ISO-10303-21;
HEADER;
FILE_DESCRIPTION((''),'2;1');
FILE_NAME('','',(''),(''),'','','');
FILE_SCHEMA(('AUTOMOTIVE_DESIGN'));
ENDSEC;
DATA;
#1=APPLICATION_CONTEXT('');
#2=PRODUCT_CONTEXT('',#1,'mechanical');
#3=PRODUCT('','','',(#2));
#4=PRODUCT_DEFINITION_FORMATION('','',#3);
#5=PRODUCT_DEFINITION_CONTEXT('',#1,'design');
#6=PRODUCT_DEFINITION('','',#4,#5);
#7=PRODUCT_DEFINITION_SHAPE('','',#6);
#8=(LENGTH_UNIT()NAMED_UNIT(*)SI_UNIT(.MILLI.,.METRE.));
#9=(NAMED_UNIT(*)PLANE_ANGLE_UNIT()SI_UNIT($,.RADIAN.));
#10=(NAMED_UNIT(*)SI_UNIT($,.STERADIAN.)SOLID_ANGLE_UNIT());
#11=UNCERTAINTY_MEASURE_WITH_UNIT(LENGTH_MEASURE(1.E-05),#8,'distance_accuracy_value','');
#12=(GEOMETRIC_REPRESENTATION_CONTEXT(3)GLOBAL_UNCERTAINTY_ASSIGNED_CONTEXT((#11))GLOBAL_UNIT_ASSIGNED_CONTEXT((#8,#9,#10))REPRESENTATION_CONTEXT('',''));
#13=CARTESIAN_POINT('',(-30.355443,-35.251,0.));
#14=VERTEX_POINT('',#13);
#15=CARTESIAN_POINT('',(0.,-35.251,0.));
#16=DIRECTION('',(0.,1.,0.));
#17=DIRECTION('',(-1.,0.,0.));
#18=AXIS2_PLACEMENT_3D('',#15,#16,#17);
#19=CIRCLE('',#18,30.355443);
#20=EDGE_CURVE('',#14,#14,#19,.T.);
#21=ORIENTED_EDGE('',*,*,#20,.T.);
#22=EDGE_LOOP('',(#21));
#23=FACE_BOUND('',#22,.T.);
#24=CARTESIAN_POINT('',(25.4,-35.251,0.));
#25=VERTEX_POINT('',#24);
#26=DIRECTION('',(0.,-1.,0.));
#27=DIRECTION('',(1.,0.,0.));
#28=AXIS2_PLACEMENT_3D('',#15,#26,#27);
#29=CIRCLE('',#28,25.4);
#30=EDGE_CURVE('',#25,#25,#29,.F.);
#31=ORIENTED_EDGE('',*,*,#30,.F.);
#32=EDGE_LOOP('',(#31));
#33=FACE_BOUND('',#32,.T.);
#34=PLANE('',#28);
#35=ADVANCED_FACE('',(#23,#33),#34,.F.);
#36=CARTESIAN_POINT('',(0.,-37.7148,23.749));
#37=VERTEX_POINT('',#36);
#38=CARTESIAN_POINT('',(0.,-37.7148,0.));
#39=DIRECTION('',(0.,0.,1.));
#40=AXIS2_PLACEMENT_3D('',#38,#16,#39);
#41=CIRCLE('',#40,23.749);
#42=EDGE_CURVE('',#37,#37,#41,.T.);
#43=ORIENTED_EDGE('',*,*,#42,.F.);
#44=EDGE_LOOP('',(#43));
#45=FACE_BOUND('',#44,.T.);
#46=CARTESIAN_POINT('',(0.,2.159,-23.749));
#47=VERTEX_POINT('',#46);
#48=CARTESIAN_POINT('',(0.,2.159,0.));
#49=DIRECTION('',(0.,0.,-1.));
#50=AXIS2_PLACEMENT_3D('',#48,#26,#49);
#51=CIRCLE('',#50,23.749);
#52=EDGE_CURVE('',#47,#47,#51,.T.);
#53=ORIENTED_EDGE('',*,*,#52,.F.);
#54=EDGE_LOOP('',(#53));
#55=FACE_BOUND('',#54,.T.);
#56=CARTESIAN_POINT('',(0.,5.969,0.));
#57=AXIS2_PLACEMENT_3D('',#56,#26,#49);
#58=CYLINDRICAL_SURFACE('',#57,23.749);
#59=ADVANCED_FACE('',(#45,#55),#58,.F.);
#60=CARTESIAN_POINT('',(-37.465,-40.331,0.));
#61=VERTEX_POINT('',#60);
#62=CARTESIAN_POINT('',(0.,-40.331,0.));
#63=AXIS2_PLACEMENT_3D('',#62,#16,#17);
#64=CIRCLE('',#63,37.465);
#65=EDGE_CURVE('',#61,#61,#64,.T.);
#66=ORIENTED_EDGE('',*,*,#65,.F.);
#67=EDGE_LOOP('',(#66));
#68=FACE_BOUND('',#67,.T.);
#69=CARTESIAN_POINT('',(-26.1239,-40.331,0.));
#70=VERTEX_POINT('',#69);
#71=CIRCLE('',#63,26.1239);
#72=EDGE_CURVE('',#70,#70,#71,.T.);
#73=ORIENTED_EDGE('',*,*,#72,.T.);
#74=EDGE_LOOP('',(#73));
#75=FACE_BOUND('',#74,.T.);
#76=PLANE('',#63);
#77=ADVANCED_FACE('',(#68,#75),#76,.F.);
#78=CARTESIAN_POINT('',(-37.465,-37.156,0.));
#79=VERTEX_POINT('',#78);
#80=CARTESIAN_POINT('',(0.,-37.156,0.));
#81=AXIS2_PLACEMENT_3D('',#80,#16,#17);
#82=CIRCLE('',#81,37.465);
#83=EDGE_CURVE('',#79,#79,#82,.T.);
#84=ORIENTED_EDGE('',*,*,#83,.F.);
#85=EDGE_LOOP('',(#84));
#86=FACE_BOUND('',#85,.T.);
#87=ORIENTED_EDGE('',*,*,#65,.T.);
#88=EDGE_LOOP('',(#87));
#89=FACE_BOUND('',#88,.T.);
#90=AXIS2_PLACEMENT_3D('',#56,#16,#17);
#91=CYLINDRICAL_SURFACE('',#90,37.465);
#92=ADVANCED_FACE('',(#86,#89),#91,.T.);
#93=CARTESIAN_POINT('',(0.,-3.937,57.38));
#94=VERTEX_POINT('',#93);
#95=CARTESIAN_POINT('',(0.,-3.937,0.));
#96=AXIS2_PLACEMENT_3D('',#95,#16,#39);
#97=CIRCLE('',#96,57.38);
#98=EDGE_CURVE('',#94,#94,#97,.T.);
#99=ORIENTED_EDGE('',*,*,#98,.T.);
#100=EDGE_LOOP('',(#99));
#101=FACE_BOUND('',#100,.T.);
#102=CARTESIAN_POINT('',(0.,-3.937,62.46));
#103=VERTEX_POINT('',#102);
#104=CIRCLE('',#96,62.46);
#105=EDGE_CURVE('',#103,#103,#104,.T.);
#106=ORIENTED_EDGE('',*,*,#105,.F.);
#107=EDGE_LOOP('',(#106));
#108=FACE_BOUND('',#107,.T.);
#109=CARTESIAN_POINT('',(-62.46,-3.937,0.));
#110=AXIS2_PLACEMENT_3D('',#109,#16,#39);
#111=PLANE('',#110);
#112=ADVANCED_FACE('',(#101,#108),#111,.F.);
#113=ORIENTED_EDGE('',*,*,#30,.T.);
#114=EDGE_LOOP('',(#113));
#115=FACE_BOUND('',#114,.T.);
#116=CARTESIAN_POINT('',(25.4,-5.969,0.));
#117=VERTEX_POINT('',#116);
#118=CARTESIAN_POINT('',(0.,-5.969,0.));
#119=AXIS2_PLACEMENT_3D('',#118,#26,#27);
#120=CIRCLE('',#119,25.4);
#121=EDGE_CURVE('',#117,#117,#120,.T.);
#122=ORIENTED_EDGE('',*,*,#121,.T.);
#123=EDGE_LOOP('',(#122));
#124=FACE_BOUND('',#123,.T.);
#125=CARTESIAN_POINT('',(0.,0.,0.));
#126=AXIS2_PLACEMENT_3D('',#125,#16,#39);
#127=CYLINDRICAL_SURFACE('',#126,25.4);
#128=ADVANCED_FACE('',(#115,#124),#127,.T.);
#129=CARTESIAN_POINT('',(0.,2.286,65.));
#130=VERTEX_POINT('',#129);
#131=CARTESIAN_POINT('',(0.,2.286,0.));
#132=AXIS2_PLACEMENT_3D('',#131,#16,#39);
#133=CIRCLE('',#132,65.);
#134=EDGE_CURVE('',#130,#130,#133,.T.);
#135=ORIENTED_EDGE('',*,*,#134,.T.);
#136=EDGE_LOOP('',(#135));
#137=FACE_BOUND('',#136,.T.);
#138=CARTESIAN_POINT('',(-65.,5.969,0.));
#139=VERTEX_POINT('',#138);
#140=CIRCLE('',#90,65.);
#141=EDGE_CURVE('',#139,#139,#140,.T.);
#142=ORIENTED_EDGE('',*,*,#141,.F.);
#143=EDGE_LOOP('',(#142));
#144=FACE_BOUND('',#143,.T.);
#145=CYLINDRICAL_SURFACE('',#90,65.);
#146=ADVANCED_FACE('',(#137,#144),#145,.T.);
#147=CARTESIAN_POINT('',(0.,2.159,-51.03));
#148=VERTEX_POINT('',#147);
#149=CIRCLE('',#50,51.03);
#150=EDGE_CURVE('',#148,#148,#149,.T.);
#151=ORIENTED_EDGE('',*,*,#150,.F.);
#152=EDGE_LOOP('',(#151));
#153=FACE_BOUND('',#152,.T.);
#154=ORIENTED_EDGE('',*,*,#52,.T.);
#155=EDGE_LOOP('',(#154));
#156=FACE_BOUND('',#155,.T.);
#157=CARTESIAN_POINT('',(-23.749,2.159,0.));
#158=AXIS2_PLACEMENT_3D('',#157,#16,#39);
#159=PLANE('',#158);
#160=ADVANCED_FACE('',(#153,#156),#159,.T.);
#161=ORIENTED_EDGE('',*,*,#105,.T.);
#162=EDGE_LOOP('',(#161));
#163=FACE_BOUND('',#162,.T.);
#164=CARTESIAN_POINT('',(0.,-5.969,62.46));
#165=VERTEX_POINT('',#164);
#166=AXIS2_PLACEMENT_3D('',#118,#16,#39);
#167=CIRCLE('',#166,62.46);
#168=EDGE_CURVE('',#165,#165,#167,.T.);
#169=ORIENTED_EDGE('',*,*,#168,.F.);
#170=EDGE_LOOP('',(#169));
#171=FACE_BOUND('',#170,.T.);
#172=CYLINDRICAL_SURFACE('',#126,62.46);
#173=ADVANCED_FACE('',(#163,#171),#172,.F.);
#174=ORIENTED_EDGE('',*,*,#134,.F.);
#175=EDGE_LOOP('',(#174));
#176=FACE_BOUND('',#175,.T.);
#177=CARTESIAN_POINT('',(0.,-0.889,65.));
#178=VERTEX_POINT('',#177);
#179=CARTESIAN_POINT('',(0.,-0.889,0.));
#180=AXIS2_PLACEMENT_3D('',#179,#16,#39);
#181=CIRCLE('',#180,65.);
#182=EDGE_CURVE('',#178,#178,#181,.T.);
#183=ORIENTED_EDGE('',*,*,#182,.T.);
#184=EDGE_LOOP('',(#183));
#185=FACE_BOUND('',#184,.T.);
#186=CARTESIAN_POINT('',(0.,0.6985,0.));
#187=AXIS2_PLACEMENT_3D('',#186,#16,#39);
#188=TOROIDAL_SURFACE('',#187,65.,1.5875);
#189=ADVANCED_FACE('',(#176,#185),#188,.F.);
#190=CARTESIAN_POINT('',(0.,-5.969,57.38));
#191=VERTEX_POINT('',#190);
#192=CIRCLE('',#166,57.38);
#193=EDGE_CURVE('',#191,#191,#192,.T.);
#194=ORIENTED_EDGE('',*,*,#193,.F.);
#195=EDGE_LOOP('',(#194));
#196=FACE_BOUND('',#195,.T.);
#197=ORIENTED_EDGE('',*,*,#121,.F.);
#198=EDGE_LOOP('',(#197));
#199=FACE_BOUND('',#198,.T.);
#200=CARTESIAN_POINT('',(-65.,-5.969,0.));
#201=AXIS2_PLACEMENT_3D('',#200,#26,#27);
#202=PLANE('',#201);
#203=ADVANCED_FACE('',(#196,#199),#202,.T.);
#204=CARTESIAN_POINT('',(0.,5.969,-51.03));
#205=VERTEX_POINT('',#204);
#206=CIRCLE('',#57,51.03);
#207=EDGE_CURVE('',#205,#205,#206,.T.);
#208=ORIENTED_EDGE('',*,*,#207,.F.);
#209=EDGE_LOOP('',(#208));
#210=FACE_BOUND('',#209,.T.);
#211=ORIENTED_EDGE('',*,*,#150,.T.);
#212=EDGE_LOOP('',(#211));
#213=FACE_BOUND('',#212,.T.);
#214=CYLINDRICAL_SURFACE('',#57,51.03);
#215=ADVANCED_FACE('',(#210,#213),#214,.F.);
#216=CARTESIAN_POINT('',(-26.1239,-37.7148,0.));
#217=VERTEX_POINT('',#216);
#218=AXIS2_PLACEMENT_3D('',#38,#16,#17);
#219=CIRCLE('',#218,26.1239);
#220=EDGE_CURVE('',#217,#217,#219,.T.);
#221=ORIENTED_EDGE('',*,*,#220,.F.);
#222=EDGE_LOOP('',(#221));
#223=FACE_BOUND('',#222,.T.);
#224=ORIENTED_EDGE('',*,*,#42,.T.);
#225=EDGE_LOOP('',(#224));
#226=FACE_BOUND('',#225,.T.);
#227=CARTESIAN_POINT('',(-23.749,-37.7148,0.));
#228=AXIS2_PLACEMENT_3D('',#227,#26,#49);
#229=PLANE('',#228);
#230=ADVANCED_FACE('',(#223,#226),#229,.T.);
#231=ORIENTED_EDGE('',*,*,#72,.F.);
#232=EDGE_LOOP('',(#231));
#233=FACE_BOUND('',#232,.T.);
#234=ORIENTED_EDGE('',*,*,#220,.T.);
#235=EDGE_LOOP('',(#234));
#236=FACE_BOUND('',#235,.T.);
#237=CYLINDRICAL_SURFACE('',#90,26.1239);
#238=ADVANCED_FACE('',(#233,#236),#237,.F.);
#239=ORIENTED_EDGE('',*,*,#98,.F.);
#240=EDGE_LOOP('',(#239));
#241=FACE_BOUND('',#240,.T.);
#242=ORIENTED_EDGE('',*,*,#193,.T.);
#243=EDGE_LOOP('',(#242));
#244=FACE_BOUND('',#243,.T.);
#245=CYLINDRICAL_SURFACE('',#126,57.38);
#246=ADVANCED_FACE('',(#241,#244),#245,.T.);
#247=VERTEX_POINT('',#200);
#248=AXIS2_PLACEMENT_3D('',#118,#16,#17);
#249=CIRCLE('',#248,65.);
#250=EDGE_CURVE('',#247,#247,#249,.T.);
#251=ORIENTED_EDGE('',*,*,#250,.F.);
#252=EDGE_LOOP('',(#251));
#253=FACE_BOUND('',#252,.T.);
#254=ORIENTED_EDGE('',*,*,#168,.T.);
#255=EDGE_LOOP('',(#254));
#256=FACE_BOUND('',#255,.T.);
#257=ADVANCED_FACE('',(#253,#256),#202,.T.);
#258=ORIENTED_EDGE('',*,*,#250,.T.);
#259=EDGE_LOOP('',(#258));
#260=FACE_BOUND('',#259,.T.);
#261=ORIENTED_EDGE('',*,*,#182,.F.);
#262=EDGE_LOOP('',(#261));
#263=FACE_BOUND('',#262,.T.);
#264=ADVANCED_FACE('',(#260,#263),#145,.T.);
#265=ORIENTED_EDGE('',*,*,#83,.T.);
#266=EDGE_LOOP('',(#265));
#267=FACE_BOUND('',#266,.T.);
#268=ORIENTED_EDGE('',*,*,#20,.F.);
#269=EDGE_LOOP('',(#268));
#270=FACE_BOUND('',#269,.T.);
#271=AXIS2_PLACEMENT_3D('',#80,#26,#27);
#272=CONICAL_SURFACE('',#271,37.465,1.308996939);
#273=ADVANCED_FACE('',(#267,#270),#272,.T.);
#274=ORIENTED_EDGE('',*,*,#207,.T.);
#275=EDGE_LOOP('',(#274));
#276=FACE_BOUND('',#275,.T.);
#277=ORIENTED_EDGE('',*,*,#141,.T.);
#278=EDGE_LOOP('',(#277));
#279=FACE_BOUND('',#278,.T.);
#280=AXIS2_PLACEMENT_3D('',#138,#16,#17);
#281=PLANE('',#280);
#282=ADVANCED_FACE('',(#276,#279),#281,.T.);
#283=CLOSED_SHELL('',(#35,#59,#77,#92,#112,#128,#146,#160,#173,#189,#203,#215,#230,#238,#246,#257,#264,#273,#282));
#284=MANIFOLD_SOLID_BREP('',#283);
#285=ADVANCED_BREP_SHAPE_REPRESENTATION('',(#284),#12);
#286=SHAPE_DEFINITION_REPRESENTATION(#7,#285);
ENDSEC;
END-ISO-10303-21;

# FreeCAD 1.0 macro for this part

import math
import FreeCAD as App
import Part
import Sketcher
from FreeCAD import Vector
Q = App.Units.Quantity

doc = App.newDocument("Part")
body = doc.addObject("PartDesign::Body", "Body")

# Sketch on XY plane
sketch1 = body.newObject("Sketcher::SketchObject", "Sketch")
sketch1.AttachmentSupport = (doc.getObject("XY_Plane"), [""])
sketch1.MapMode = "FlatFace"
sketch1.addGeometry([
    Part.LineSegment(Vector(-65, 6, 0), Vector(-65, -6, 0)),
    Part.LineSegment(Vector(-65, -6, 0), Vector(0, -6, 0)),
    Part.LineSegment(Vector(0, -6, 0), Vector(0, 6, 0)),
    Part.LineSegment(Vector(0, 6, 0), Vector(-65, 6, 0)),
], False)
sketch1.addConstraint([
    Sketcher.Constraint("Coincident", 0, 2, 1, 1),
    Sketcher.Constraint("Coincident", 1, 2, 2, 1),
    Sketcher.Constraint("Coincident", 2, 2, 3, 1),
    Sketcher.Constraint("Coincident", 3, 2, 0, 1),
    Sketcher.Constraint("Vertical", 0),
    Sketcher.Constraint("Horizontal", 1),
    Sketcher.Constraint("Vertical", 2),
    Sketcher.Constraint("Horizontal", 3),
    Sketcher.Constraint("Symmetric", 1, 2, 2, 2, -1, 1),
    Sketcher.Constraint("DistanceY", 0, 2, 0, 1, Q("0.47 in")),
    Sketcher.Constraint("DistanceX", 1, 1, 1, 2, 65.0),
])
revolution = body.newObject("PartDesign::Revolution", "Revolution")
revolution.Profile = sketch1
revolution.ReferenceAxis = (sketch1, ["V_Axis"])
revolution.Angle = 360

# Sketch on XY plane
sketch2 = body.newObject("Sketcher::SketchObject", "Sketch001")
sketch2.AttachmentSupport = (doc.getObject("XY_Plane"), [""])
sketch2.MapMode = "FlatFace"
sketch2.addGeometry([
    Part.LineSegment(Vector(-23.7, 2.2, 0), Vector(-23.7, -6, 0)),  # 0
    Part.LineSegment(Vector(-23.7, -6, 0), Vector(0, -6, 0)),  # 1
    Part.LineSegment(Vector(0, -6, 0), Vector(0, 6, 0)),  # 2
    Part.LineSegment(Vector(0, 6, 0), Vector(-51, 6, 0)),  # 3
    Part.LineSegment(Vector(-51, 6, 0), Vector(-51, 2.2, 0)),  # 4
    Part.LineSegment(Vector(-51, 2.2, 0), Vector(-23.7, 2.2, 0)),  # 5
], False)
sketch2.addConstraint([
    Sketcher.Constraint("Coincident", 0, 2, 1, 1),
    Sketcher.Constraint("Coincident", 1, 2, 2, 1),
    Sketcher.Constraint("Coincident", 2, 2, 3, 1),
    Sketcher.Constraint("Coincident", 3, 2, 4, 1),
    Sketcher.Constraint("Coincident", 4, 2, 5, 1),
    Sketcher.Constraint("Coincident", 5, 2, 0, 1),
    Sketcher.Constraint("Vertical", 0),
    Sketcher.Constraint("Horizontal", 1),
    Sketcher.Constraint("Vertical", 2),
    Sketcher.Constraint("Horizontal", 3),
    Sketcher.Constraint("Vertical", 4),
    Sketcher.Constraint("Horizontal", 5),
    Sketcher.Constraint("Symmetric", 1, 2, 2, 2, -1, 1),
    Sketcher.Constraint("DistanceY", 0, 2, 0, 1, Q("0.32 in")),
    Sketcher.Constraint("DistanceY", 2, 1, 2, 2, Q("0.47 in")),
    Sketcher.Constraint("DistanceX", 1, 1, 1, 2, Q("0.935 in")),
    Sketcher.Constraint("DistanceX", 3, 2, 3, 1, 51.03),
])
groove = body.newObject("PartDesign::Groove", "Groove")
groove.Profile = sketch2
groove.ReferenceAxis = (sketch2, ["V_Axis"])
groove.Angle = 360
body2 = doc.addObject("PartDesign::Body", "Body001")

# Sketch on XY plane
sketch3 = body2.newObject("Sketcher::SketchObject", "Sketch002")
sketch3.AttachmentSupport = (doc.getObject("XY_Plane001"), [""])
sketch3.MapMode = "FlatFace"
sketch3.addGeometry([
    Part.LineSegment(Vector(30.4, -35.3, 0), Vector(23.7, -35.3, 0)),  # 0
    Part.LineSegment(Vector(23.7, -35.3, 0), Vector(23.7, -37.7, 0)),  # 1
    Part.LineSegment(Vector(23.7, -37.7, 0), Vector(26.1, -37.7, 0)),  # 2
    Part.LineSegment(Vector(26.1, -37.7, 0), Vector(26.1, -40.3, 0)),  # 3
    Part.LineSegment(Vector(26.1, -40.3, 0), Vector(37.5, -40.3, 0)),  # 4
    Part.LineSegment(Vector(37.5, -40.3, 0), Vector(37.5, -37.2, 0)),  # 5
    Part.LineSegment(Vector(37.5, -37.2, 0), Vector(30.4, -35.3, 0)),  # 6
], False)
sketch3.addConstraint([
    Sketcher.Constraint("Coincident", 0, 2, 1, 1),
    Sketcher.Constraint("Coincident", 1, 2, 2, 1),
    Sketcher.Constraint("Coincident", 2, 2, 3, 1),
    Sketcher.Constraint("Coincident", 3, 2, 4, 1),
    Sketcher.Constraint("Coincident", 4, 2, 5, 1),
    Sketcher.Constraint("Coincident", 5, 2, 6, 1),
    Sketcher.Constraint("Coincident", 6, 2, 0, 1),
    Sketcher.Constraint("Horizontal", 0),
    Sketcher.Constraint("Vertical", 1),
    Sketcher.Constraint("Horizontal", 2),
    Sketcher.Constraint("Vertical", 3),
    Sketcher.Constraint("Horizontal", 4),
    Sketcher.Constraint("Vertical", 5),
    Sketcher.Constraint("Angle", 6, Q("165 deg")),
    Sketcher.Constraint("DistanceY", 3, 2, 0, 2, Q("0.2 in")),
    Sketcher.Constraint("DistanceY", 1, 2, 1, 1, Q("0.097 in")),
    Sketcher.Constraint("DistanceY", 5, 1, 5, 2, Q("0.125 in")),
    Sketcher.Constraint("DistanceX", 1, 2, 4, 2, Q("0.54 in")),
    Sketcher.Constraint("DistanceX", 2, 1, 2, 2, Q("0.0935 in")),
    Sketcher.Constraint("DistanceX", -1, 1, 0, 2, Q("0.935 in")),
    Sketcher.Constraint("DistanceY", 0, 2, -1, 1, 35.251),
])
revolution2 = body2.newObject("PartDesign::Revolution", "Revolution001")
revolution2.Profile = sketch3
revolution2.ReferenceAxis = (sketch3, ["V_Axis"])
revolution2.Angle = 360
body.AllowCompound = True
doc.recompute()

boolean = body.newObject("PartDesign::Boolean", "Boolean")
boolean.Type = "Fuse"
boolean.addObjects([body2])

# Sketch on XY plane
sketch4 = body.newObject("Sketcher::SketchObject", "Sketch003")
sketch4.AttachmentSupport = (doc.getObject("XY_Plane"), [""])
sketch4.MapMode = "FlatFace"
sketch4.addGeometry([
    Part.LineSegment(Vector(-23.7, -37.7, 0), Vector(-23.7, 2.2, 0)),
    Part.LineSegment(Vector(-23.7, 2.2, 0), Vector(-25.4, 2.2, 0)),
    Part.LineSegment(Vector(-25.4, 2.2, 0), Vector(-25.4, -37.7, 0)),
    Part.LineSegment(Vector(-25.4, -37.7, 0), Vector(-23.7, -37.7, 0)),
], False)
sketch4.addConstraint([
    Sketcher.Constraint("Coincident", 0, 2, 1, 1),
    Sketcher.Constraint("Coincident", 1, 2, 2, 1),
    Sketcher.Constraint("Coincident", 2, 2, 3, 1),
    Sketcher.Constraint("Coincident", 3, 2, 0, 1),
    Sketcher.Constraint("Vertical", 0),
    Sketcher.Constraint("Horizontal", 1),
    Sketcher.Constraint("Vertical", 2),
    Sketcher.Constraint("Horizontal", 3),
    Sketcher.Constraint("DistanceX", 1, 2, -1, 1, Q("1 in")),
    Sketcher.Constraint("DistanceX", 1, 2, 1, 1, Q("0.065 in")),
    Sketcher.Constraint("DistanceY", -1, 1, 0, 2, Q("0.085 in")),
    Sketcher.Constraint("DistanceY", 0, 1, 0, 2, 39.8738),
])
revolution3 = body.newObject("PartDesign::Revolution", "Revolution002")
revolution3.Profile = sketch4
revolution3.ReferenceAxis = (sketch4, ["V_Axis"])
revolution3.Angle = 360

# Sketch on XY plane
sketch5 = body.newObject("Sketcher::SketchObject", "Sketch004")
sketch5.AttachmentSupport = (doc.getObject("XY_Plane"), [""])
sketch5.MapMode = "FlatFace"
sketch5.addGeometry([
    Part.LineSegment(Vector(-62.5, -3.9, 0), Vector(-62.5, -6, 0)),
    Part.LineSegment(Vector(-62.5, -6, 0), Vector(-57.4, -6, 0)),
    Part.LineSegment(Vector(-57.4, -6, 0), Vector(-57.4, -3.9, 0)),
    Part.LineSegment(Vector(-57.4, -3.9, 0), Vector(-62.5, -3.9, 0)),
], False)
sketch5.addConstraint([
    Sketcher.Constraint("Coincident", 0, 2, 1, 1),
    Sketcher.Constraint("Coincident", 1, 2, 2, 1),
    Sketcher.Constraint("Coincident", 2, 2, 3, 1),
    Sketcher.Constraint("Coincident", 3, 2, 0, 1),
    Sketcher.Constraint("Vertical", 0),
    Sketcher.Constraint("Horizontal", 1),
    Sketcher.Constraint("Vertical", 2),
    Sketcher.Constraint("Horizontal", 3),
    Sketcher.Constraint("DistanceX", 1, 1, 1, 2, Q("0.2 in")),
    Sketcher.Constraint("DistanceY", 0, 2, 0, 1, Q("0.08 in")),
    Sketcher.Constraint("DistanceY", 0, 2, -1, 1, Q("0.235 in")),
    Sketcher.Constraint("DistanceX", 0, 2, -1, 1, 62.46),
])
groove2 = body.newObject("PartDesign::Groove", "Groove001")
groove2.Profile = sketch5
groove2.ReferenceAxis = (sketch5, ["V_Axis"])
groove2.Angle = 360

# Sketch on XY plane
sketch6 = body.newObject("Sketcher::SketchObject", "Sketch005")
sketch6.AttachmentSupport = (doc.getObject("XY_Plane"), [""])
sketch6.MapMode = "FlatFace"
sketch6.addGeometry([
    Part.LineSegment(Vector(-65, 2.3, 0), Vector(-65, -0.9, 0)),
    Part.ArcOfCircle(Part.Circle(Vector(-65, 0.7, 0), Vector(0, 0, 1), 1.6), math.radians(-90), math.radians(90)),
], False)
sketch6.addConstraint([
    Sketcher.Constraint("Coincident", 0, 1, 1, 2),
    Sketcher.Constraint("Coincident", 1, 1, 0, 2),
    Sketcher.Constraint("Vertical", 0),
    Sketcher.Constraint("Vertical", 1, 3, 0, 1),
    Sketcher.Constraint("Radius", 1, Q("0.0625 in")),
    Sketcher.Constraint("DistanceY", -1, 1, 0, 1, Q("0.09 in")),
    Sketcher.Constraint("DistanceX", 1, 3, -1, 1, 65.0),
])
groove3 = body.newObject("PartDesign::Groove", "Groove002")
groove3.Profile = sketch6
groove3.ReferenceAxis = (sketch6, ["V_Axis"])
groove3.Angle = 360

doc.recompute()
